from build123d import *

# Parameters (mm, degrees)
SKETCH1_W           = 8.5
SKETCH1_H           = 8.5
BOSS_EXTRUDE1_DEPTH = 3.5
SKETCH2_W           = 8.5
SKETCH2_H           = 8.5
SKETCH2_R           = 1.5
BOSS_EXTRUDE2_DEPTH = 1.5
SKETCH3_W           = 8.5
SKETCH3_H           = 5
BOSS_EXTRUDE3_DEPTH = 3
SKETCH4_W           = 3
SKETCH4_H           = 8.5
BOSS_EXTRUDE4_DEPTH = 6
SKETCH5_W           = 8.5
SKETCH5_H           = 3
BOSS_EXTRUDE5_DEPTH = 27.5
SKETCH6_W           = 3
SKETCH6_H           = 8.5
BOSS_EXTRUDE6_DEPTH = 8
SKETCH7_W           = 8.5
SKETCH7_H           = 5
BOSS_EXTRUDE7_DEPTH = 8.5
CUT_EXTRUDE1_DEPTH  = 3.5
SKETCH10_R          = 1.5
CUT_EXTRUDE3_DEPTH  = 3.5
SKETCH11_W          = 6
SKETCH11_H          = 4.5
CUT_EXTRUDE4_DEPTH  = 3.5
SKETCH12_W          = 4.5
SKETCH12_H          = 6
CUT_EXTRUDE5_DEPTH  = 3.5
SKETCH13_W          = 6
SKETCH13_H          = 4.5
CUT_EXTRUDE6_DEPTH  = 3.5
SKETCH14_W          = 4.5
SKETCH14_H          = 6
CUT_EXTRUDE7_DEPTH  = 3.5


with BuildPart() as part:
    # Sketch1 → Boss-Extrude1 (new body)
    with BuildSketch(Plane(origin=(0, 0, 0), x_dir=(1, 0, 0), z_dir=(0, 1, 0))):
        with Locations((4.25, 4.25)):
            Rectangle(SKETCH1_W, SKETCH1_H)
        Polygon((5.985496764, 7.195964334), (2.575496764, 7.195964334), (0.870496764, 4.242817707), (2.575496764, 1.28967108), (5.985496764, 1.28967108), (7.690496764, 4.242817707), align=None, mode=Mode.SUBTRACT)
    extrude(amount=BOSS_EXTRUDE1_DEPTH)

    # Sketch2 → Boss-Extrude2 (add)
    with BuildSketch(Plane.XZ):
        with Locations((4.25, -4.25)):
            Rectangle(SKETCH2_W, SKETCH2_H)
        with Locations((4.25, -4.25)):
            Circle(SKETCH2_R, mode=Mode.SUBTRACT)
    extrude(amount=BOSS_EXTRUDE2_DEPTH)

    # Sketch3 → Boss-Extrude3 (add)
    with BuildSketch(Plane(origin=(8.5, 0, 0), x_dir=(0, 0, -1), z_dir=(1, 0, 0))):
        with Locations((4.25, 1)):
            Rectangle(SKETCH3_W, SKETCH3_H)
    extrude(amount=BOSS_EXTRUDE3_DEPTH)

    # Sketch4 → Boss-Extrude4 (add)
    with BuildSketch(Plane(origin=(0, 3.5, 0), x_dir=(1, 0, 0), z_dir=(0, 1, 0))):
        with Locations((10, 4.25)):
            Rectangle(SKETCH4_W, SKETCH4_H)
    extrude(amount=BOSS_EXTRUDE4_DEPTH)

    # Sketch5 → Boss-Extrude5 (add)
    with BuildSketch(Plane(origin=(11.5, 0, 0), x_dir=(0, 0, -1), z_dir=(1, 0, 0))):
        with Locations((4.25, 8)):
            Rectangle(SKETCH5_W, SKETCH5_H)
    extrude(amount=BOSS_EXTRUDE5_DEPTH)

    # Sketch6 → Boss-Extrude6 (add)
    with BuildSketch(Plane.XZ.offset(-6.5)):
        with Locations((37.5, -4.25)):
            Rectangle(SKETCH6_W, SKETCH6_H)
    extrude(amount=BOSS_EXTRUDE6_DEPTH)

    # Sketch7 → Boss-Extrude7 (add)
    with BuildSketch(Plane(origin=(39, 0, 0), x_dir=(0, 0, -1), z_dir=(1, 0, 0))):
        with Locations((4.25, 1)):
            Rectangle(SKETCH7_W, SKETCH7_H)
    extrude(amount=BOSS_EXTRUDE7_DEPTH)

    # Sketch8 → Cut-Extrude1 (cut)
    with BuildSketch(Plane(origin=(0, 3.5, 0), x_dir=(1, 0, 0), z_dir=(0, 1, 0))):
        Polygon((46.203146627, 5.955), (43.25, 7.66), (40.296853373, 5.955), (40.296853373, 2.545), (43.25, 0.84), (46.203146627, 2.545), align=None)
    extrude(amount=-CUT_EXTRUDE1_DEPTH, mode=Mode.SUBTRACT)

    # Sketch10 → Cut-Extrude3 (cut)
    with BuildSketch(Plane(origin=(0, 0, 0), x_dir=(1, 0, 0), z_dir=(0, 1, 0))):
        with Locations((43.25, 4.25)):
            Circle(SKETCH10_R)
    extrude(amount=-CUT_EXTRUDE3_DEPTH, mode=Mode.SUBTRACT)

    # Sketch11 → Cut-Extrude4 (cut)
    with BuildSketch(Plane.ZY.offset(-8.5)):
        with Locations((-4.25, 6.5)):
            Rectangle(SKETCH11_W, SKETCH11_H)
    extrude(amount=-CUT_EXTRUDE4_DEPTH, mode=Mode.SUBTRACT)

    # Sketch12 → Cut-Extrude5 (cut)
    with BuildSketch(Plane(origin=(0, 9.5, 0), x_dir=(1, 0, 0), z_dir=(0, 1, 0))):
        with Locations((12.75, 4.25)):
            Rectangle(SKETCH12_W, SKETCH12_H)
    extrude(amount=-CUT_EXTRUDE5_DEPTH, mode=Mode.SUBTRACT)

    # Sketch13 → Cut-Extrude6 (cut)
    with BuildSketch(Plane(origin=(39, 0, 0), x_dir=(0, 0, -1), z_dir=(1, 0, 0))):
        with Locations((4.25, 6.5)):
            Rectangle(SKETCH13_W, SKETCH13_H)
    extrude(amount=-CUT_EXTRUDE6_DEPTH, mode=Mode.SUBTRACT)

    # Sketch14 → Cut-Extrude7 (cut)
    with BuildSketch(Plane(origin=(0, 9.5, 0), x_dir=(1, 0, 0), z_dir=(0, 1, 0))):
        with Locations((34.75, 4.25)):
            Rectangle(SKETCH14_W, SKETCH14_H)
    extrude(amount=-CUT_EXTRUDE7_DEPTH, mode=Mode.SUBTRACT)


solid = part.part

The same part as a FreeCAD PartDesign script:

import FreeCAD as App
import Part
import Sketcher
from FreeCAD import Vector
Q = App.Units.Quantity


def add_polygon(sketch, points):
    """Adds a closed chain of lines whose ends are joined by coincident constraints."""
    first, n = sketch.GeometryCount, len(points)
    for a, b in zip(points, points[1:] + points[:1]):
        sketch.addGeometry(Part.LineSegment(App.Vector(*a, 0), App.Vector(*b, 0)), False)
    for i in range(n):
        sketch.addConstraint(Sketcher.Constraint("Coincident", first + i, 2, first + (i + 1) % n, 1))

doc = App.newDocument("Part")
body = doc.addObject("PartDesign::Body", "Body")

# Sketch on XZ plane
sketch1 = doc.addObject("Sketcher::SketchObject", "Sketch")
body.addObject(sketch1)
sketch1.AttachmentSupport = (doc.XZ_Plane, [""])
sketch1.MapMode = "FlatFace"
add_polygon(sketch1, [(0, -8.5), (0, 0), (8.5, 0), (8.5, -8.5)])  # lines 0-3
add_polygon(sketch1, [(2.6, -7.2), (6, -7.2), (7.7, -4.2), (6, -1.3), (2.6, -1.3), (0.9, -4.2)])  # lines 4-9
sketch1.addConstraint([
    Sketcher.Constraint("Vertical", 0),
    Sketcher.Constraint("Horizontal", 1),
    Sketcher.Constraint("Vertical", 2),
    Sketcher.Constraint("Horizontal", 3),
    Sketcher.Constraint("Horizontal", 4),
    Sketcher.Constraint("Horizontal", 7),
    Sketcher.Constraint("Coincident", 0, 2, -1, 1),
    Sketcher.Constraint("Parallel", 5, 8),
    Sketcher.Constraint("Parallel", 6, 9),
    Sketcher.Constraint("Horizontal", 5, 2, 8, 2),
    Sketcher.Constraint("Vertical", 4, 2, 6, 2),
    Sketcher.Constraint("Vertical", 7, 2, 9, 2),
    Sketcher.Constraint("Equal", 3, 0),
    Sketcher.Constraint("Angle", 5, Q("60 deg")),
    Sketcher.Constraint("DistanceX", 1, 1, 1, 2, 8.5),
    Sketcher.Constraint("DistanceX", 4, 1, 4, 2, 3.41),
    Sketcher.Constraint("Distance", 5, 3.41),
    Sketcher.Constraint("DistanceY", 6, 2, -1, 1, 1.289671),
    Sketcher.Constraint("DistanceX", -1, 1, 4, 2, 5.985497),
])
pad1 = doc.addObject("PartDesign::Pad", "Pad")
body.addObject(pad1)
pad1.Profile = sketch1
pad1.Length = 3.5
pad1.Reversed = True

# Sketch on XZ plane
sketch2 = doc.addObject("Sketcher::SketchObject", "Sketch001")
body.addObject(sketch2)
sketch2.AttachmentSupport = (doc.XZ_Plane, [""])
sketch2.MapMode = "FlatFace"
add_polygon(sketch2, [(0, 0), (0, -8.5), (8.5, -8.5), (8.5, 0)])  # lines 0-3
sketch2.addGeometry(Part.Circle(Vector(4.2, -4.2, 0), Vector(0, 0, 1), 1.5), False)  # 4
sketch2.addConstraint([
    Sketcher.Constraint("Vertical", 0),
    Sketcher.Constraint("Horizontal", 1),
    Sketcher.Constraint("Vertical", 2),
    Sketcher.Constraint("Horizontal", 3),
    Sketcher.Constraint("Coincident", 3, 2, -1, 1),
    Sketcher.Constraint("Equal", 3, 0),
    Sketcher.Constraint("Diameter", 4, 3.0),
    Sketcher.Constraint("DistanceX", 1, 1, 1, 2, 8.5),
    Sketcher.Constraint("DistanceX", -1, 1, 4, 3, 4.25),
    Sketcher.Constraint("DistanceY", 4, 3, -1, 1, 4.25),
])
pad2 = doc.addObject("PartDesign::Pad", "Pad001")
body.addObject(pad2)
pad2.Profile = sketch2
pad2.Length = 1.5

# Sketch on YZ plane
sketch3 = doc.addObject("Sketcher::SketchObject", "Sketch002")
body.addObject(sketch3)
sketch3.AttachmentSupport = (doc.YZ_Plane, [""])
sketch3.MapMode = "FlatFace"
sketch3.AttachmentOffset = App.Placement(Vector(0, 0, 8.5), App.Rotation())
add_polygon(sketch3, [(4, 0), (-2, 0), (-2, -8), (4, -8)])  # lines 0-3
sketch3.addConstraint([
    Sketcher.Constraint("Horizontal", 0),
    Sketcher.Constraint("Vertical", 1),
    Sketcher.Constraint("Horizontal", 2),
    Sketcher.Constraint("Vertical", 3),
    Sketcher.Constraint("PointOnObject", 0, 2, -1),
    Sketcher.Constraint("DistanceX", 0, 2, 0, 1, 5.0),
    Sketcher.Constraint("DistanceY", 1, 2, 1, 1, 8.5),
    Sketcher.Constraint("DistanceX", 0, 2, -1, 1, 1.5),
])
pad3 = doc.addObject("PartDesign::Pad", "Pad002")
body.addObject(pad3)
pad3.Profile = sketch3
pad3.Length = 3

# Sketch on XZ plane
sketch4 = doc.addObject("Sketcher::SketchObject", "Sketch003")
body.addObject(sketch4)
sketch4.AttachmentSupport = (doc.XZ_Plane, [""])
sketch4.MapMode = "FlatFace"
sketch4.AttachmentOffset = App.Placement(Vector(0, 0, -3.5), App.Rotation())
add_polygon(sketch4, [(8.5, -8.5), (8.5, 0), (11.5, 0), (11.5, -8.5)])  # lines 0-3
sketch4.addConstraint([
    Sketcher.Constraint("Vertical", 0),
    Sketcher.Constraint("Horizontal", 1),
    Sketcher.Constraint("Vertical", 2),
    Sketcher.Constraint("Horizontal", 3),
    Sketcher.Constraint("PointOnObject", 0, 2, -1),
    Sketcher.Constraint("DistanceX", 1, 1, 1, 2, 3.0),
    Sketcher.Constraint("DistanceY", 0, 1, 0, 2, 8.5),
    Sketcher.Constraint("DistanceX", -1, 1, 0, 2, 8.5),
])
pad4 = doc.addObject("PartDesign::Pad", "Pad003")
body.addObject(pad4)
pad4.Profile = sketch4
pad4.Length = 6
pad4.Reversed = True

# Sketch on YZ plane
sketch5 = doc.addObject("Sketcher::SketchObject", "Sketch004")
body.addObject(sketch5)
sketch5.AttachmentSupport = (doc.YZ_Plane, [""])
sketch5.MapMode = "FlatFace"
sketch5.AttachmentOffset = App.Placement(Vector(0, 0, 11.5), App.Rotation())
add_polygon(sketch5, [(9.5, 0), (6.5, 0), (6.5, -8.5), (9.5, -8.5)])  # lines 0-3
sketch5.addConstraint([
    Sketcher.Constraint("Horizontal", 0),
    Sketcher.Constraint("Vertical", 1),
    Sketcher.Constraint("Horizontal", 2),
    Sketcher.Constraint("Vertical", 3),
    Sketcher.Constraint("PointOnObject", 0, 2, -1),
    Sketcher.Constraint("DistanceX", 0, 2, 0, 1, 3.0),
    Sketcher.Constraint("DistanceY", 1, 2, 1, 1, 8.5),
    Sketcher.Constraint("DistanceX", -1, 1, 0, 2, 6.5),
])
pad5 = doc.addObject("PartDesign::Pad", "Pad004")
body.addObject(pad5)
pad5.Profile = sketch5
pad5.Length = 27.5

# Sketch on XZ plane
sketch6 = doc.addObject("Sketcher::SketchObject", "Sketch005")
body.addObject(sketch6)
sketch6.AttachmentSupport = (doc.XZ_Plane, [""])
sketch6.MapMode = "FlatFace"
sketch6.AttachmentOffset = App.Placement(Vector(0, 0, -6.5), App.Rotation())
add_polygon(sketch6, [(36, 0), (36, -8.5), (39, -8.5), (39, 0)])  # lines 0-3
sketch6.addConstraint([
    Sketcher.Constraint("Vertical", 0),
    Sketcher.Constraint("Horizontal", 1),
    Sketcher.Constraint("Vertical", 2),
    Sketcher.Constraint("Horizontal", 3),
    Sketcher.Constraint("PointOnObject", 2, 2, -1),
    Sketcher.Constraint("DistanceX", 1, 1, 1, 2, 3.0),
    Sketcher.Constraint("DistanceY", 0, 2, 0, 1, 8.5),
    Sketcher.Constraint("DistanceX", -1, 1, 0, 2, 36.0),
])
pad6 = doc.addObject("PartDesign::Pad", "Pad005")
body.addObject(pad6)
pad6.Profile = sketch6
pad6.Length = 8

# Sketch on YZ plane
sketch7 = doc.addObject("Sketcher::SketchObject", "Sketch006")
body.addObject(sketch7)
sketch7.AttachmentSupport = (doc.YZ_Plane, [""])
sketch7.MapMode = "FlatFace"
sketch7.AttachmentOffset = App.Placement(Vector(0, 0, 39), App.Rotation())
add_polygon(sketch7, [(4, 0), (-2, 0), (-2, -8), (4, -8)])  # lines 0-3
sketch7.addConstraint([
    Sketcher.Constraint("Horizontal", 0),
    Sketcher.Constraint("Vertical", 1),
    Sketcher.Constraint("Horizontal", 2),
    Sketcher.Constraint("Vertical", 3),
    Sketcher.Constraint("PointOnObject", 0, 2, -1),
    Sketcher.Constraint("DistanceX", 0, 2, 0, 1, 5.0),
    Sketcher.Constraint("DistanceY", 1, 2, 1, 1, 8.5),
    Sketcher.Constraint("DistanceX", 0, 2, -1, 1, 1.5),
])
pad7 = doc.addObject("PartDesign::Pad", "Pad006")
body.addObject(pad7)
pad7.Profile = sketch7
pad7.Length = 8.5

# Sketch on XZ plane
sketch8 = doc.addObject("Sketcher::SketchObject", "Sketch007")
body.addObject(sketch8)
sketch8.AttachmentSupport = (doc.XZ_Plane, [""])
sketch8.MapMode = "FlatFace"
sketch8.AttachmentOffset = App.Placement(Vector(0, 0, -3.5), App.Rotation())
add_polygon(sketch8, [(46.2, -6), (43.2, -7.7), (40.3, -6), (40.3, -2.5), (43.2, -0.8), (46.2, -2.5)])  # lines 0-5
sketch8.addConstraint([
    Sketcher.Constraint("Vertical", 2),
    Sketcher.Constraint("Vertical", 5),
    Sketcher.Constraint("Parallel", 0, 3),
    Sketcher.Constraint("Parallel", 1, 4),
    Sketcher.Constraint("Horizontal", 2, 2, 4, 2),
    Sketcher.Constraint("Horizontal", 1, 2, 5, 2),
    Sketcher.Constraint("Vertical", 0, 2, 3, 2),
    Sketcher.Constraint("Angle", 0, Q("-150 deg")),
    Sketcher.Constraint("DistanceY", 2, 1, 2, 2, 3.41),
    Sketcher.Constraint("Distance", 0, 3.41),
    Sketcher.Constraint("DistanceX", -1, 1, 0, 2, 43.25),
    Sketcher.Constraint("DistanceY", 0, 2, -1, 1, 7.66),
])
pocket1 = doc.addObject("PartDesign::Pocket", "Pocket")
body.addObject(pocket1)
pocket1.Profile = sketch8
pocket1.Length = 3.5
pocket1.Reversed = True

# Sketch on XZ plane
sketch9 = doc.addObject("Sketcher::SketchObject", "Sketch008")
body.addObject(sketch9)
sketch9.AttachmentSupport = (doc.XZ_Plane, [""])
sketch9.MapMode = "FlatFace"
sketch9.addGeometry(Part.Circle(Vector(43.2, -4.2, 0), Vector(0, 0, 1), 1.5), False)
sketch9.addConstraint([
    Sketcher.Constraint("Diameter", 0, 3.0),
    Sketcher.Constraint("DistanceX", -1, 1, 0, 3, 43.25),
    Sketcher.Constraint("DistanceY", 0, 3, -1, 1, 4.25),
])
pocket2 = doc.addObject("PartDesign::Pocket", "Pocket001")
body.addObject(pocket2)
pocket2.Profile = sketch9
pocket2.Length = 3.5
pocket2.Reversed = True

# Sketch on YZ plane
sketch10 = doc.addObject("Sketcher::SketchObject", "Sketch009")
body.addObject(sketch10)
sketch10.AttachmentSupport = (doc.YZ_Plane, [""])
sketch10.MapMode = "FlatFace"
sketch10.AttachmentOffset = App.Placement(Vector(0, 0, 8.5), App.Rotation())
add_polygon(sketch10, [(8.8, -7.2), (4.2, -7.2), (4.2, -1.2), (8.8, -1.2)])  # lines 0-3
sketch10.addConstraint([
    Sketcher.Constraint("Horizontal", 0),
    Sketcher.Constraint("Vertical", 1),
    Sketcher.Constraint("Horizontal", 2),
    Sketcher.Constraint("Vertical", 3),
    Sketcher.Constraint("DistanceY", 1, 1, 1, 2, 6.0),
    Sketcher.Constraint("DistanceX", 0, 2, 0, 1, 4.5),
    Sketcher.Constraint("DistanceX", -1, 1, 0, 2, 4.25),
    Sketcher.Constraint("DistanceY", 0, 2, -1, 1, 7.25),
])
pocket3 = doc.addObject("PartDesign::Pocket", "Pocket002")
body.addObject(pocket3)
pocket3.Profile = sketch10
pocket3.Length = 3.5
pocket3.Reversed = True

# Sketch on XZ plane
sketch11 = doc.addObject("Sketcher::SketchObject", "Sketch010")
body.addObject(sketch11)
sketch11.AttachmentSupport = (doc.XZ_Plane, [""])
sketch11.MapMode = "FlatFace"
sketch11.AttachmentOffset = App.Placement(Vector(0, 0, -9.5), App.Rotation())
add_polygon(sketch11, [(10.5, -7.2), (10.5, -1.2), (15, -1.2), (15, -7.2)])  # lines 0-3
sketch11.addConstraint([
    Sketcher.Constraint("Vertical", 0),
    Sketcher.Constraint("Horizontal", 1),
    Sketcher.Constraint("Vertical", 2),
    Sketcher.Constraint("Horizontal", 3),
    Sketcher.Constraint("DistanceY", 0, 1, 0, 2, 6.0),
    Sketcher.Constraint("DistanceX", 1, 1, 1, 2, 4.5),
    Sketcher.Constraint("DistanceX", -1, 1, 1, 2, 15.0),
    Sketcher.Constraint("DistanceY", 0, 2, -1, 1, 1.25),
])
pocket4 = doc.addObject("PartDesign::Pocket", "Pocket003")
body.addObject(pocket4)
pocket4.Profile = sketch11
pocket4.Length = 3.5
pocket4.Reversed = True

# Sketch on YZ plane
sketch12 = doc.addObject("Sketcher::SketchObject", "Sketch011")
body.addObject(sketch12)
sketch12.AttachmentSupport = (doc.YZ_Plane, [""])
sketch12.MapMode = "FlatFace"
sketch12.AttachmentOffset = App.Placement(Vector(0, 0, 39), App.Rotation())
add_polygon(sketch12, [(8.8, -1.2), (4.2, -1.2), (4.2, -7.2), (8.8, -7.2)])  # lines 0-3
sketch12.addConstraint([
    Sketcher.Constraint("Horizontal", 0),
    Sketcher.Constraint("Vertical", 1),
    Sketcher.Constraint("Horizontal", 2),
    Sketcher.Constraint("Vertical", 3),
    Sketcher.Constraint("DistanceY", 1, 2, 1, 1, 6.0),
    Sketcher.Constraint("DistanceX", 0, 2, 0, 1, 4.5),
    Sketcher.Constraint("DistanceX", -1, 1, 0, 2, 4.25),
    Sketcher.Constraint("DistanceY", 0, 2, -1, 1, 1.25),
])
pocket5 = doc.addObject("PartDesign::Pocket", "Pocket004")
body.addObject(pocket5)
pocket5.Profile = sketch12
pocket5.Length = 3.5

# Sketch on XZ plane
sketch13 = doc.addObject("Sketcher::SketchObject", "Sketch012")
body.addObject(sketch13)
sketch13.AttachmentSupport = (doc.XZ_Plane, [""])
sketch13.MapMode = "FlatFace"
sketch13.AttachmentOffset = App.Placement(Vector(0, 0, -9.5), App.Rotation())
add_polygon(sketch13, [(32.5, -7.2), (32.5, -1.2), (37, -1.2), (37, -7.2)])  # lines 0-3
sketch13.addConstraint([
    Sketcher.Constraint("Vertical", 0),
    Sketcher.Constraint("Horizontal", 1),
    Sketcher.Constraint("Vertical", 2),
    Sketcher.Constraint("Horizontal", 3),
    Sketcher.Constraint("DistanceY", 0, 1, 0, 2, 6.0),
    Sketcher.Constraint("DistanceX", 1, 1, 1, 2, 4.5),
    Sketcher.Constraint("DistanceX", -1, 1, 1, 2, 37.0),
    Sketcher.Constraint("DistanceY", 0, 2, -1, 1, 1.25),
])
pocket6 = doc.addObject("PartDesign::Pocket", "Pocket005")
body.addObject(pocket6)
pocket6.Profile = sketch13
pocket6.Length = 3.5
pocket6.Reversed = True

doc.recompute()
